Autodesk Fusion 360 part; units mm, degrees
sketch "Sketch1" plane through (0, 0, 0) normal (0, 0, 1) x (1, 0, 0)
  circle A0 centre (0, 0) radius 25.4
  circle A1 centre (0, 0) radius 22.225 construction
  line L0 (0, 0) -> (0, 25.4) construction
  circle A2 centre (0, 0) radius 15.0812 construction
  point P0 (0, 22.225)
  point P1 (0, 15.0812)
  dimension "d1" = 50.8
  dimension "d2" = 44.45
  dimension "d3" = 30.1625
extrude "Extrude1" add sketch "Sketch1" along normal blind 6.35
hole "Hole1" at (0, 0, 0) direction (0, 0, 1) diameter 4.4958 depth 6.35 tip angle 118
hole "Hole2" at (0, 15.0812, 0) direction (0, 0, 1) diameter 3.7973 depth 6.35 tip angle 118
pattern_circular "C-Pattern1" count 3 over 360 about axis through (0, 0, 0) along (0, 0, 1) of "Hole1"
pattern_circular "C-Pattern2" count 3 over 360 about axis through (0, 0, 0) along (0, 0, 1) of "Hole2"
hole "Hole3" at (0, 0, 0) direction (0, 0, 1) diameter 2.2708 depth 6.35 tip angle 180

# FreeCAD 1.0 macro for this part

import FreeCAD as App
import Part
import Sketcher

V = App.Vector
Q = App.Units.Quantity

doc = App.newDocument("Part")
params = doc.addObject("Spreadsheet::Sheet", "Params")
for row, (alias, value) in enumerate([
    ("sketch1_diameter", "2 in"),
    ("pad1_length", "0.25 in"),
    ("sketch2_diameter", "0.177 in"),
    ("hole_diameter", "0.177 in"),
    ("hole_depth", "0.25 in"),
    ("hole2_diameter", "0.1495 in"),
    ("hole2_depth", "0.25 in"),
    ("hole3_diameter", "0.0894016 in"),
    ("hole3_depth", "0.25 in"),
], start=1):
    params.set(f"A{row}", alias)
    params.set(f"B{row}", "=" + value)
    params.setAlias(f"B{row}", alias)

body = doc.addObject("PartDesign::Body", "Body")

# Sketch on XY plane
sketch1 = body.newObject("Sketcher::SketchObject", "Sketch")
sketch1.AttachmentSupport = (doc.getObject("XY_Plane"), [""])
sketch1.MapMode = "FlatFace"
sketch1.addGeometry(Part.Circle(V(0, 0, 0), V(0, 0, 1), 25), False)
sketch1.addConstraint([
    Sketcher.Constraint("Coincident", 0, 3, -1, 1),
    Sketcher.Constraint("Diameter", 0, Q("2 in")),
])
sketch1.setExpression("Constraints[1]", "Params.sketch1_diameter")
pad1 = body.newObject("PartDesign::Pad", "Pad")
pad1.Profile = sketch1
pad1.setExpression("Length", "Params.pad1_length")

# Sketch on XY plane
sketch2 = body.newObject("Sketcher::SketchObject", "Sketch001")
sketch2.AttachmentSupport = (doc.getObject("XY_Plane"), [""])
sketch2.MapMode = "FlatFace"
sketch2.addGeometry(Part.Circle(V(0, 0, 0), V(0, 0, 1), 2.2), False)
sketch2.addConstraint([
    Sketcher.Constraint("Coincident", 0, 3, -1, 1),
    Sketcher.Constraint("Diameter", 0, Q("0.177 in")),
])
sketch2.setExpression("Constraints[1]", "Params.sketch2_diameter")
doc.recompute()
hole = body.newObject("PartDesign::Hole", "Hole")
hole.Profile = sketch2
hole.ThreadType = "None"
hole.setExpression("Diameter", "Params.hole_diameter")
hole.DepthType = "Dimension"
hole.setExpression("Depth", "Params.hole_depth")
hole.DrillPoint = "Angled"
hole.DrillPointAngle = 118
hole.Reversed = True

# Sketch on XY plane
sketch3 = body.newObject("Sketcher::SketchObject", "Sketch002")
sketch3.AttachmentSupport = (doc.getObject("XY_Plane"), [""])
sketch3.MapMode = "FlatFace"
sketch3.addGeometry(Part.Circle(V(0, 15.1, 0), V(0, 0, 1), 1.9), False)
sketch3.addConstraint([
    Sketcher.Constraint("PointOnObject", 0, 3, -2),
    Sketcher.Constraint("Diameter", 0, Q("0.1495 in")),
    Sketcher.Constraint("DistanceY", -1, 1, 0, 3, Q("0.593748 in")),
])
doc.recompute()
hole2 = body.newObject("PartDesign::Hole", "Hole001")
hole2.Profile = sketch3
hole2.ThreadType = "None"
hole2.setExpression("Diameter", "Params.hole2_diameter")
hole2.DepthType = "Dimension"
hole2.setExpression("Depth", "Params.hole2_depth")
hole2.DrillPoint = "Angled"
hole2.DrillPointAngle = 118
hole2.Reversed = True
doc.recompute()

polarpattern = body.newObject("PartDesign::PolarPattern", "PolarPattern")
polarpattern.Originals = [hole]
polarpattern.Axis = (doc.getObject("Z_Axis"), [""])
polarpattern.Angle = 360
polarpattern.Occurrences = 3
body.Tip = polarpattern
doc.recompute()

polarpattern2 = body.newObject("PartDesign::PolarPattern", "PolarPattern001")
polarpattern2.Originals = [hole2]
polarpattern2.Axis = (doc.getObject("Z_Axis"), [""])
polarpattern2.Angle = 360
polarpattern2.Occurrences = 3
body.Tip = polarpattern2

# Sketch on XY plane
sketch4 = body.newObject("Sketcher::SketchObject", "Sketch003")
sketch4.AttachmentSupport = (doc.getObject("XY_Plane"), [""])
sketch4.MapMode = "FlatFace"
sketch4.addGeometry(Part.Circle(V(0, 0, 0), V(0, 0, 1), 1.1), False)
sketch4.addConstraint([
    Sketcher.Constraint("Coincident", 0, 3, -1, 1),
    Sketcher.Constraint("Diameter", 0, Q("0.0894 in")),
])
doc.recompute()
hole3 = body.newObject("PartDesign::Hole", "Hole002")
hole3.Profile = sketch4
hole3.ThreadType = "None"
hole3.setExpression("Diameter", "Params.hole3_diameter")
hole3.DepthType = "Dimension"
hole3.setExpression("Depth", "Params.hole3_depth")
hole3.DrillPoint = "Flat"
hole3.Reversed = True

doc.recompute()
